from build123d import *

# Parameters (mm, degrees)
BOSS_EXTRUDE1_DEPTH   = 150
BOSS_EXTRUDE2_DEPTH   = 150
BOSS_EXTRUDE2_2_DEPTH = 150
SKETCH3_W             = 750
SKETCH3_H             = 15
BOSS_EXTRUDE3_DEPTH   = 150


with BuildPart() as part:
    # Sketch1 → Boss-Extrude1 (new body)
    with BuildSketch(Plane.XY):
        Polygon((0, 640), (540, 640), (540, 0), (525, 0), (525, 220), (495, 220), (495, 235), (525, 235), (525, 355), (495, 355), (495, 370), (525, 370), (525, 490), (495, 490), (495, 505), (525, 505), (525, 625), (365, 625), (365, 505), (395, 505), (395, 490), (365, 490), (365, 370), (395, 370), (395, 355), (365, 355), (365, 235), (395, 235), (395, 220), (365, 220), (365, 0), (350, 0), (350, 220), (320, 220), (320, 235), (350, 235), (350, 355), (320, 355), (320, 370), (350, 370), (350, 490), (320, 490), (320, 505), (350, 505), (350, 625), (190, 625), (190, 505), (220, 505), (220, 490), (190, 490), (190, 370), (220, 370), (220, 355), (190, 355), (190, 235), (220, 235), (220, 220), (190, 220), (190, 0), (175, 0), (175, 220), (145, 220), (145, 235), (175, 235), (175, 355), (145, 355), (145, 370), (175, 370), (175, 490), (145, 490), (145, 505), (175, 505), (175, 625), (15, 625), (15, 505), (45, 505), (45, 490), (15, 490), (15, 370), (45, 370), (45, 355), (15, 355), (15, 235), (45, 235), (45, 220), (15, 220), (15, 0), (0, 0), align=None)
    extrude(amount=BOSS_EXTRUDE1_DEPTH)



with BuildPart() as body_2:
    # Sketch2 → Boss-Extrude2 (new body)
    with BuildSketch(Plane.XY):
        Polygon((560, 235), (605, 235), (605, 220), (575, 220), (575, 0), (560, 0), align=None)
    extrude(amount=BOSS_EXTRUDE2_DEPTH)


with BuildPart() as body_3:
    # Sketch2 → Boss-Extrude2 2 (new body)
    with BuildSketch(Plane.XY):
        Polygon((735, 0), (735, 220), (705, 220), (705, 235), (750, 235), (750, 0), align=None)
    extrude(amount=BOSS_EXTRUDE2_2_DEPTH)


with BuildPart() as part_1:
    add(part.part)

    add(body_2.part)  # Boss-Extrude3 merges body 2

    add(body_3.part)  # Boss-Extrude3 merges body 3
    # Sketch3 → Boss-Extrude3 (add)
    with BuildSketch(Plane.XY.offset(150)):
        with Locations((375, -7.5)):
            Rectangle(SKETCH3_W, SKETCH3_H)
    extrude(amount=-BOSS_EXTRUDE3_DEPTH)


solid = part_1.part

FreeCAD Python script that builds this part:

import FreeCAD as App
import Part
import Sketcher
from FreeCAD import Vector
Q = App.Units.Quantity


def add_polygon(sketch, points):
    """Adds a closed chain of lines whose ends are joined by coincident constraints."""
    first, n = sketch.GeometryCount, len(points)
    for a, b in zip(points, points[1:] + points[:1]):
        sketch.addGeometry(Part.LineSegment(App.Vector(*a, 0), App.Vector(*b, 0)), False)
    for i in range(n):
        sketch.addConstraint(Sketcher.Constraint("Coincident", first + i, 2, first + (i + 1) % n, 1))

doc = App.newDocument("Part")
body = doc.addObject("PartDesign::Body", "Body")

# Sketch on XY plane
sketch1 = body.newObject("Sketcher::SketchObject", "Sketch")
sketch1.AttachmentSupport = (doc.getObject("XY_Plane"), [""])
sketch1.MapMode = "FlatFace"
add_polygon(sketch1, [(540, 640), (0, 640), (0, 0), (15, 0), (15, 220), (45, 220), (45, 235), (15, 235), (15, 355), (45, 355), (45, 370), (15, 370), (15, 490), (45, 490), (45, 505), (15, 505), (15, 625), (175, 625), (175, 505), (145, 505), (145, 490), (175, 490), (175, 370), (145, 370), (145, 355), (175, 355), (175, 235), (145, 235), (145, 220), (175, 220), (175, 0), (190, 0), (190, 220), (220, 220), (220, 235), (190, 235), (190, 355), (220, 355), (220, 370), (190, 370), (190, 490), (220, 490), (220, 505), (190, 505), (190, 625), (350, 625), (350, 505), (320, 505), (320, 490), (350, 490), (350, 370), (320, 370), (320, 355), (350, 355), (350, 235), (320, 235), (320, 220), (350, 220), (350, 0), (365, 0), (365, 220), (395, 220), (395, 235), (365, 235), (365, 355), (395, 355), (395, 370), (365, 370), (365, 490), (395, 490), (395, 505), (365, 505), (365, 625), (525, 625), (525, 505), (495, 505), (495, 490), (525, 490), (525, 370), (495, 370), (495, 355), (525, 355), (525, 235), (495, 235), (495, 220), (525, 220), (525, 0), (540, 0)])  # lines 0-87
sketch1.addConstraint([
    Sketcher.Constraint("Horizontal", 0),
    Sketcher.Constraint("Vertical", 1),
    Sketcher.Constraint("Horizontal", 2),
    Sketcher.Constraint("Vertical", 3),
    Sketcher.Constraint("Horizontal", 4),
    Sketcher.Constraint("Vertical", 5),
    Sketcher.Constraint("Horizontal", 6),
    Sketcher.Constraint("Vertical", 7),
    Sketcher.Constraint("Horizontal", 8),
    Sketcher.Constraint("Vertical", 9),
    Sketcher.Constraint("Horizontal", 10),
    Sketcher.Constraint("Vertical", 11),
    Sketcher.Constraint("Horizontal", 12),
    Sketcher.Constraint("Vertical", 13),
    Sketcher.Constraint("Horizontal", 14),
    Sketcher.Constraint("Vertical", 15),
    Sketcher.Constraint("Horizontal", 16),
    Sketcher.Constraint("Vertical", 17),
    Sketcher.Constraint("Horizontal", 18),
    Sketcher.Constraint("Vertical", 19),
    Sketcher.Constraint("Horizontal", 20),
    Sketcher.Constraint("Vertical", 21),
    Sketcher.Constraint("Horizontal", 22),
    Sketcher.Constraint("Vertical", 23),
    Sketcher.Constraint("Horizontal", 24),
    Sketcher.Constraint("Vertical", 25),
    Sketcher.Constraint("Horizontal", 26),
    Sketcher.Constraint("Vertical", 27),
    Sketcher.Constraint("Horizontal", 28),
    Sketcher.Constraint("Vertical", 29),
    Sketcher.Constraint("Horizontal", 30),
    Sketcher.Constraint("Vertical", 31),
    Sketcher.Constraint("Horizontal", 32),
    Sketcher.Constraint("Vertical", 33),
    Sketcher.Constraint("Horizontal", 34),
    Sketcher.Constraint("Vertical", 35),
    Sketcher.Constraint("Horizontal", 36),
    Sketcher.Constraint("Vertical", 37),
    Sketcher.Constraint("Horizontal", 38),
    Sketcher.Constraint("Vertical", 39),
    Sketcher.Constraint("Horizontal", 40),
    Sketcher.Constraint("Vertical", 41),
    Sketcher.Constraint("Horizontal", 42),
    Sketcher.Constraint("Vertical", 43),
    Sketcher.Constraint("Horizontal", 44),
    Sketcher.Constraint("Vertical", 45),
    Sketcher.Constraint("Horizontal", 46),
    Sketcher.Constraint("Vertical", 47),
    Sketcher.Constraint("Horizontal", 48),
    Sketcher.Constraint("Vertical", 49),
    Sketcher.Constraint("Horizontal", 50),
    Sketcher.Constraint("Vertical", 51),
    Sketcher.Constraint("Horizontal", 52),
    Sketcher.Constraint("Vertical", 53),
    Sketcher.Constraint("Horizontal", 54),
    Sketcher.Constraint("Vertical", 55),
    Sketcher.Constraint("Horizontal", 56),
    Sketcher.Constraint("Vertical", 57),
    Sketcher.Constraint("Horizontal", 58),
    Sketcher.Constraint("Vertical", 59),
    Sketcher.Constraint("Horizontal", 60),
    Sketcher.Constraint("Vertical", 61),
    Sketcher.Constraint("Horizontal", 62),
    Sketcher.Constraint("Vertical", 63),
    Sketcher.Constraint("Horizontal", 64),
    Sketcher.Constraint("Vertical", 65),
    Sketcher.Constraint("Horizontal", 66),
    Sketcher.Constraint("Vertical", 67),
    Sketcher.Constraint("Horizontal", 68),
    Sketcher.Constraint("Vertical", 69),
    Sketcher.Constraint("Horizontal", 70),
    Sketcher.Constraint("Vertical", 71),
    Sketcher.Constraint("Horizontal", 72),
    Sketcher.Constraint("Vertical", 73),
    Sketcher.Constraint("Horizontal", 74),
    Sketcher.Constraint("Vertical", 75),
    Sketcher.Constraint("Horizontal", 76),
    Sketcher.Constraint("Vertical", 77),
    Sketcher.Constraint("Horizontal", 78),
    Sketcher.Constraint("Vertical", 79),
    Sketcher.Constraint("Horizontal", 80),
    Sketcher.Constraint("Vertical", 81),
    Sketcher.Constraint("Horizontal", 82),
    Sketcher.Constraint("Vertical", 83),
    Sketcher.Constraint("Horizontal", 84),
    Sketcher.Constraint("Vertical", 85),
    Sketcher.Constraint("Horizontal", 86),
    Sketcher.Constraint("Vertical", 87),
    Sketcher.Constraint("Coincident", 1, 2, -1, 1),
    Sketcher.Constraint("PointOnObject", 29, 2, -1),
    Sketcher.Constraint("PointOnObject", 57, 2, -1),
    Sketcher.Constraint("PointOnObject", 85, 2, -1),
    Sketcher.Constraint("Horizontal", 14, 2, 17, 2),
    Sketcher.Constraint("Horizontal", 12, 2, 19, 2),
    Sketcher.Constraint("Horizontal", 10, 2, 21, 2),
    Sketcher.Constraint("Horizontal", 8, 2, 23, 2),
    Sketcher.Constraint("Horizontal", 6, 2, 25, 2),
    Sketcher.Constraint("Horizontal", 4, 2, 27, 2),
    Sketcher.Constraint("Horizontal", 28, 2, 31, 2),
    Sketcher.Constraint("Horizontal", 26, 2, 33, 2),
    Sketcher.Constraint("Horizontal", 24, 2, 35, 2),
    Sketcher.Constraint("Horizontal", 22, 2, 37, 2),
    Sketcher.Constraint("Horizontal", 20, 2, 39, 2),
    Sketcher.Constraint("Horizontal", 18, 2, 41, 2),
    Sketcher.Constraint("Horizontal", 16, 2, 43, 2),
    Sketcher.Constraint("Horizontal", 42, 2, 45, 2),
    Sketcher.Constraint("Horizontal", 40, 2, 47, 2),
    Sketcher.Constraint("Horizontal", 38, 2, 49, 2),
    Sketcher.Constraint("Horizontal", 36, 2, 51, 2),
    Sketcher.Constraint("Horizontal", 34, 2, 53, 2),
    Sketcher.Constraint("Horizontal", 32, 2, 55, 2),
    Sketcher.Constraint("Horizontal", 56, 2, 59, 2),
    Sketcher.Constraint("Horizontal", 54, 2, 61, 2),
    Sketcher.Constraint("Horizontal", 52, 2, 63, 2),
    Sketcher.Constraint("Horizontal", 50, 2, 65, 2),
    Sketcher.Constraint("Horizontal", 48, 2, 67, 2),
    Sketcher.Constraint("Horizontal", 46, 2, 69, 2),
    Sketcher.Constraint("Horizontal", 44, 2, 71, 2),
    Sketcher.Constraint("Horizontal", 70, 2, 73, 2),
    Sketcher.Constraint("Horizontal", 68, 2, 75, 2),
    Sketcher.Constraint("Horizontal", 66, 2, 77, 2),
    Sketcher.Constraint("Horizontal", 64, 2, 79, 2),
    Sketcher.Constraint("Horizontal", 62, 2, 81, 2),
    Sketcher.Constraint("Horizontal", 60, 2, 83, 2),
    Sketcher.Constraint("Vertical", 3, 2, 6, 2),
    Sketcher.Constraint("Vertical", 5, 2, 8, 2),
    Sketcher.Constraint("Vertical", 7, 2, 10, 2),
    Sketcher.Constraint("Vertical", 9, 2, 12, 2),
    Sketcher.Constraint("Vertical", 11, 2, 14, 2),
    Sketcher.Constraint("Vertical", 17, 2, 20, 2),
    Sketcher.Constraint("Vertical", 19, 2, 22, 2),
    Sketcher.Constraint("Vertical", 21, 2, 24, 2),
    Sketcher.Constraint("Vertical", 23, 2, 26, 2),
    Sketcher.Constraint("Vertical", 25, 2, 28, 2),
    Sketcher.Constraint("Vertical", 31, 2, 34, 2),
    Sketcher.Constraint("Vertical", 33, 2, 36, 2),
    Sketcher.Constraint("Vertical", 35, 2, 38, 2),
    Sketcher.Constraint("Vertical", 37, 2, 40, 2),
    Sketcher.Constraint("Vertical", 39, 2, 42, 2),
    Sketcher.Constraint("Vertical", 45, 2, 48, 2),
    Sketcher.Constraint("Vertical", 47, 2, 50, 2),
    Sketcher.Constraint("Vertical", 49, 2, 52, 2),
    Sketcher.Constraint("Vertical", 51, 2, 54, 2),
    Sketcher.Constraint("Vertical", 53, 2, 56, 2),
    Sketcher.Constraint("Vertical", 59, 2, 62, 2),
    Sketcher.Constraint("Vertical", 61, 2, 64, 2),
    Sketcher.Constraint("Vertical", 63, 2, 66, 2),
    Sketcher.Constraint("Vertical", 65, 2, 68, 2),
    Sketcher.Constraint("Vertical", 67, 2, 70, 2),
    Sketcher.Constraint("Vertical", 73, 2, 76, 2),
    Sketcher.Constraint("Vertical", 75, 2, 78, 2),
    Sketcher.Constraint("Vertical", 77, 2, 80, 2),
    Sketcher.Constraint("Vertical", 79, 2, 82, 2),
    Sketcher.Constraint("Vertical", 81, 2, 84, 2),
    Sketcher.Constraint("Equal", 14, 18),
    Sketcher.Constraint("Equal", 2, 30),
    Sketcher.Constraint("Equal", 28, 32),
    Sketcher.Constraint("Equal", 16, 44),
    Sketcher.Constraint("Equal", 42, 46),
    Sketcher.Constraint("Equal", 30, 58),
    Sketcher.Constraint("Equal", 56, 60),
    Sketcher.Constraint("Equal", 44, 72),
    Sketcher.Constraint("Equal", 70, 74),
    Sketcher.Constraint("Equal", 58, 86),
    Sketcher.Constraint("Equal", 86, 5),
    Sketcher.Constraint("Equal", 5, 9),
    Sketcher.Constraint("Equal", 7, 11),
    Sketcher.Constraint("Equal", 9, 13),
    Sketcher.Constraint("Equal", 11, 15),
    Sketcher.Constraint("DistanceX", 0, 2, 0, 1, Q("540 mm")),
    Sketcher.Constraint("DistanceX", 2, 1, 2, 2, Q("15 mm")),
    Sketcher.Constraint("DistanceX", 4, 1, 4, 2, Q("30 mm")),
    Sketcher.Constraint("DistanceY", 1, 2, 1, 1, Q("640 mm")),
    Sketcher.Constraint("DistanceY", 3, 1, 3, 2, Q("220 mm")),
    Sketcher.Constraint("DistanceY", 7, 1, 7, 2, Q("120 mm")),
])
pad1 = body.newObject("PartDesign::Pad", "Pad")
pad1.Profile = sketch1
pad1.Length = 150
body2 = doc.addObject("PartDesign::Body", "Body001")

# Sketch on XY plane
sketch2 = body2.newObject("Sketcher::SketchObject", "Sketch001")
sketch2.AttachmentSupport = (doc.getObject("XY_Plane001"), [""])
sketch2.MapMode = "FlatFace"
add_polygon(sketch2, [(605, 235), (560, 235), (560, 0), (575, 0), (575, 220), (605, 220)])  # lines 0-5
sketch2.addConstraint([
    Sketcher.Constraint("Horizontal", 0),
    Sketcher.Constraint("Vertical", 1),
    Sketcher.Constraint("Horizontal", 2),
    Sketcher.Constraint("Vertical", 3),
    Sketcher.Constraint("Horizontal", 4),
    Sketcher.Constraint("Vertical", 5),
    Sketcher.Constraint("PointOnObject", 1, 2, -1),
    Sketcher.Constraint("Equal", 2, 5),
    Sketcher.Constraint("DistanceX", 0, 2, 0, 1, Q("45 mm")),
    Sketcher.Constraint("DistanceX", 2, 1, 2, 2, Q("15 mm")),
    Sketcher.Constraint("DistanceY", 1, 2, 1, 1, Q("235 mm")),
    Sketcher.Constraint("DistanceX", -1, 1, 0, 2, Q("560 mm")),
])
pad2 = body2.newObject("PartDesign::Pad", "Pad001")
pad2.Profile = sketch2
pad2.Length = 150
body3 = doc.addObject("PartDesign::Body", "Body002")

# Sketch on XY plane
sketch3 = body3.newObject("Sketcher::SketchObject", "Sketch002")
sketch3.AttachmentSupport = (doc.getObject("XY_Plane002"), [""])
sketch3.MapMode = "FlatFace"
add_polygon(sketch3, [(735, 220), (735, 0), (750, 0), (750, 235), (705, 235), (705, 220)])  # lines 0-5
sketch3.addConstraint([
    Sketcher.Constraint("Vertical", 0),
    Sketcher.Constraint("Horizontal", 1),
    Sketcher.Constraint("Vertical", 2),
    Sketcher.Constraint("Horizontal", 3),
    Sketcher.Constraint("Vertical", 4),
    Sketcher.Constraint("Horizontal", 5),
    Sketcher.Constraint("PointOnObject", 0, 2, -1),
    Sketcher.Constraint("Equal", 1, 4),
    Sketcher.Constraint("DistanceX", 1, 1, 1, 2, Q("15 mm")),
    Sketcher.Constraint("DistanceX", 3, 2, 3, 1, Q("45 mm")),
    Sketcher.Constraint("DistanceY", 0, 2, 0, 1, Q("220 mm")),
    Sketcher.Constraint("DistanceX", -1, 1, 0, 2, Q("735 mm")),
])
pad3 = body3.newObject("PartDesign::Pad", "Pad002")
pad3.Profile = sketch3
pad3.Length = 150
body.AllowCompound = True
doc.recompute()

boolean = body.newObject("PartDesign::Boolean", "Boolean")
boolean.Type = "Fuse"
boolean.addObjects([body2])
doc.recompute()

boolean2 = body.newObject("PartDesign::Boolean", "Boolean001")
boolean2.Type = "Fuse"
boolean2.addObjects([body3])

# Sketch on XY plane
sketch4 = body.newObject("Sketcher::SketchObject", "Sketch003")
sketch4.AttachmentSupport = (doc.getObject("XY_Plane"), [""])
sketch4.MapMode = "FlatFace"
sketch4.AttachmentOffset = App.Placement(Vector(0, 0, 150), App.Rotation())
add_polygon(sketch4, [(0, 0), (0, -15), (750, -15), (750, 0)])  # lines 0-3
sketch4.addConstraint([
    Sketcher.Constraint("Vertical", 0),
    Sketcher.Constraint("Horizontal", 1),
    Sketcher.Constraint("Vertical", 2),
    Sketcher.Constraint("Horizontal", 3),
    Sketcher.Constraint("Coincident", 3, 2, -1, 1),
    Sketcher.Constraint("DistanceX", 1, 1, 1, 2, Q("750 mm")),
    Sketcher.Constraint("DistanceY", 0, 2, 0, 1, Q("15 mm")),
])
pad4 = body.newObject("PartDesign::Pad", "Pad003")
pad4.Profile = sketch4
pad4.Length = 150
pad4.Reversed = True

doc.recompute()
